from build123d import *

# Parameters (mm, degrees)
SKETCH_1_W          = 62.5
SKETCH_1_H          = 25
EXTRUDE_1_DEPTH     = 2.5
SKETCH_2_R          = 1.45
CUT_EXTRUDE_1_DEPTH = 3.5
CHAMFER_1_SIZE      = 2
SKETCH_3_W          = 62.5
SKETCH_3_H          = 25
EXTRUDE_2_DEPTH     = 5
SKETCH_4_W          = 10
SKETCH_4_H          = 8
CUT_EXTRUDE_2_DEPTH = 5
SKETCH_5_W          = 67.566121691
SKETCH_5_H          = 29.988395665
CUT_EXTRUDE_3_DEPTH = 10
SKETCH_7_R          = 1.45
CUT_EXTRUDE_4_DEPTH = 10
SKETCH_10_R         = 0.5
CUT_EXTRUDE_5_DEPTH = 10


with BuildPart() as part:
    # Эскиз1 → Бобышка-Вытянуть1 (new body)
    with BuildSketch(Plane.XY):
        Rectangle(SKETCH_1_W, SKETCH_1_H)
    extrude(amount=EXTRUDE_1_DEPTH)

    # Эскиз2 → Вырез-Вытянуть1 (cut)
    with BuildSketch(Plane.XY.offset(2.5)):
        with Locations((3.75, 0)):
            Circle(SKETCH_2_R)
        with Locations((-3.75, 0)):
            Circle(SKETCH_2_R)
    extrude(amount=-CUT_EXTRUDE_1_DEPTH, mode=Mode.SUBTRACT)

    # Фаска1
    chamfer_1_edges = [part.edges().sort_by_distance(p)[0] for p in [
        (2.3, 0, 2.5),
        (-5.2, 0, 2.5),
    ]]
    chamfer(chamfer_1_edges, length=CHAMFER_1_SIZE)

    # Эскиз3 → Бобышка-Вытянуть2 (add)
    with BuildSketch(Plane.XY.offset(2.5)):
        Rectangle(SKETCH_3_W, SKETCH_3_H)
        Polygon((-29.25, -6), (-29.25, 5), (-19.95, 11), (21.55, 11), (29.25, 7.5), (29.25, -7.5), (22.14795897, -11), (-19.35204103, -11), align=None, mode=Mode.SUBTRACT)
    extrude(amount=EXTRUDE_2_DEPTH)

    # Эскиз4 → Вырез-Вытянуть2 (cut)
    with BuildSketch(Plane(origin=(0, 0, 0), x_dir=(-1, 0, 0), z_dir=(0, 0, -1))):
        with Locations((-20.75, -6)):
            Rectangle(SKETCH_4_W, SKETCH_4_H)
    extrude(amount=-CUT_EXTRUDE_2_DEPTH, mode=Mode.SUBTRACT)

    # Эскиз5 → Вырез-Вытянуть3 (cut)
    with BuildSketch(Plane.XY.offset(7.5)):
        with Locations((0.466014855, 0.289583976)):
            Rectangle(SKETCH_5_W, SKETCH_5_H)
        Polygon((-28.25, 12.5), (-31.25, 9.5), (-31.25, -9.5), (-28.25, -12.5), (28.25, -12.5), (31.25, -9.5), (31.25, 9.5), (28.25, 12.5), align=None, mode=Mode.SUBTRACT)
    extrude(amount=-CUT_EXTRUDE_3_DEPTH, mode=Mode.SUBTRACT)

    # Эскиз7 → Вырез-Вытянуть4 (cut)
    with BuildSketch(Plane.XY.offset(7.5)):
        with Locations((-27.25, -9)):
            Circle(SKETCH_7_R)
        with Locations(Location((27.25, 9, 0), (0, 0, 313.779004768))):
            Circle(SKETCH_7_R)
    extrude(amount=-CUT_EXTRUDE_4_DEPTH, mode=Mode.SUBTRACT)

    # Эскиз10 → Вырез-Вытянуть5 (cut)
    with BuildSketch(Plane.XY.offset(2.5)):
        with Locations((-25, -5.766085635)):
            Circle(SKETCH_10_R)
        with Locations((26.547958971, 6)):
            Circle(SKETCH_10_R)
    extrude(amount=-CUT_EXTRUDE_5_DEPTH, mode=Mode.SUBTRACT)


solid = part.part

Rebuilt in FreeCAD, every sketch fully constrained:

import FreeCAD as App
import Part
import Sketcher
from FreeCAD import Vector
Q = App.Units.Quantity


def edges_at(feature, points):
    """Names of the edges that pass closest to the given points."""
    edges = feature.Shape.Edges
    near = lambda p: min(range(len(edges)), key=lambda i: edges[i].distToShape(Part.Vertex(*p))[0])
    return sorted({f"Edge{near(p) + 1}" for p in points})


def add_polygon(sketch, points):
    """Adds a closed chain of lines whose ends are joined by coincident constraints."""
    first, n = sketch.GeometryCount, len(points)
    for a, b in zip(points, points[1:] + points[:1]):
        sketch.addGeometry(Part.LineSegment(App.Vector(*a, 0), App.Vector(*b, 0)), False)
    for i in range(n):
        sketch.addConstraint(Sketcher.Constraint("Coincident", first + i, 2, first + (i + 1) % n, 1))

doc = App.newDocument("Part")
body = doc.addObject("PartDesign::Body", "Body")

# Sketch on XY plane
sketch1 = body.newObject("Sketcher::SketchObject", "Sketch")
sketch1.AttachmentSupport = (doc.getObject("XY_Plane"), [""])
sketch1.MapMode = "FlatFace"
add_polygon(sketch1, [(-31, 12), (-31, -12), (31, -12), (31, 12)])  # lines 0-3
sketch1.addConstraint([
    Sketcher.Constraint("Vertical", 0),
    Sketcher.Constraint("Horizontal", 1),
    Sketcher.Constraint("Vertical", 2),
    Sketcher.Constraint("Horizontal", 3),
    Sketcher.Constraint("Symmetric", 0, 2, 2, 2, -1, 1),
    Sketcher.Constraint("DistanceY", 0, 2, 0, 1, Q("25 mm")),
    Sketcher.Constraint("DistanceX", 1, 1, 1, 2, Q("62.5 mm")),
])
pad1 = body.newObject("PartDesign::Pad", "Pad")
pad1.Profile = sketch1
pad1.Length = 2.5

# Sketch on XY plane
sketch2 = body.newObject("Sketcher::SketchObject", "Sketch001")
sketch2.AttachmentSupport = (doc.getObject("XY_Plane"), [""])
sketch2.MapMode = "FlatFace"
sketch2.AttachmentOffset = App.Placement(Vector(0, 0, 2.5), App.Rotation())
sketch2.addGeometry([
    Part.Circle(Vector(3.8, 0, 0), Vector(0, 0, 1), 1.4),
    Part.Circle(Vector(-3.8, 0, 0), Vector(0, 0, 1), 1.4),
], False)
sketch2.addConstraint([
    Sketcher.Constraint("Equal", 0, 1),
    Sketcher.Constraint("Symmetric", 0, 3, 1, 3, -1, 1),
    Sketcher.Constraint("PointOnObject", 0, 3, -1),
    Sketcher.Constraint("Diameter", 0, Q("2.9 mm")),
    Sketcher.Constraint("DistanceX", 1, 3, 0, 3, Q("7.5 mm")),
])
pocket1 = body.newObject("PartDesign::Pocket", "Pocket")
pocket1.Profile = sketch2
pocket1.Length = 3.5
doc.recompute()

chamfer = body.newObject("PartDesign::Chamfer", "Chamfer")
chamfer.Base = (pocket1, edges_at(pocket1, [(2.3, 0, 2.5), (-5.2, 0, 2.5)]))
chamfer.Size = 2

# Sketch on XY plane
sketch3 = body.newObject("Sketcher::SketchObject", "Sketch002")
sketch3.AttachmentSupport = (doc.getObject("XY_Plane"), [""])
sketch3.MapMode = "FlatFace"
sketch3.AttachmentOffset = App.Placement(Vector(0, 0, 2.5), App.Rotation())
add_polygon(sketch3, [(-31, 12), (-31, -12), (31, -12), (31, 12)])  # lines 0-3
add_polygon(sketch3, [(-19, -11), (-29, -6), (-29, 5), (-20, 11), (22, 11), (29, 8), (29, -8), (22, -11)])  # lines 4-11
sketch3.addConstraint([
    Sketcher.Constraint("Vertical", 0),
    Sketcher.Constraint("Horizontal", 1),
    Sketcher.Constraint("Vertical", 2),
    Sketcher.Constraint("Horizontal", 3),
    Sketcher.Constraint("Vertical", 5),
    Sketcher.Constraint("Horizontal", 7),
    Sketcher.Constraint("Vertical", 9),
    Sketcher.Constraint("Horizontal", 11),
    Sketcher.Constraint("Symmetric", 0, 2, 2, 2, -1, 1),
    Sketcher.Constraint("Equal", 7, 11),
    Sketcher.Constraint("DistanceY", 0, 2, 0, 1, Q("25 mm")),
    Sketcher.Constraint("DistanceY", 5, 1, 5, 2, Q("11 mm")),
    Sketcher.Constraint("DistanceY", 9, 2, 9, 1, Q("15 mm")),
    Sketcher.Constraint("DistanceX", 1, 1, 1, 2, Q("62.5 mm")),
    Sketcher.Constraint("DistanceX", 7, 1, 7, 2, Q("41.5 mm")),
    Sketcher.Constraint("DistanceY", 4, 2, -1, 1, Q("6 mm")),
    Sketcher.Constraint("DistanceY", -1, 1, 6, 2, Q("11 mm")),
    Sketcher.Constraint("DistanceY", 10, 2, -1, 1, Q("11 mm")),
    Sketcher.Constraint("DistanceX", 0, 2, 4, 2, Q("2 mm")),
    Sketcher.Constraint("DistanceX", 8, 2, 2, 2, Q("2 mm")),
    Sketcher.Constraint("DistanceY", 8, 2, 2, 2, Q("5 mm")),
    Sketcher.Constraint("DistanceX", 5, 2, 6, 2, Q("9.3 mm")),
    Sketcher.Constraint("DistanceX", -1, 1, 10, 2, Q("22.147959 mm")),
])
pad2 = body.newObject("PartDesign::Pad", "Pad001")
pad2.Profile = sketch3
pad2.Length = 5

# Sketch on XY plane
sketch4 = body.newObject("Sketcher::SketchObject", "Sketch003")
sketch4.AttachmentSupport = (doc.getObject("XY_Plane"), [""])
sketch4.MapMode = "FlatFace"
add_polygon(sketch4, [(26, -2), (26, -10), (16, -10), (16, -2)])  # lines 0-3
sketch4.addConstraint([
    Sketcher.Constraint("Vertical", 0),
    Sketcher.Constraint("Horizontal", 1),
    Sketcher.Constraint("Vertical", 2),
    Sketcher.Constraint("Horizontal", 3),
    Sketcher.Constraint("DistanceX", 1, 2, 1, 1, Q("10 mm")),
    Sketcher.Constraint("DistanceY", 0, 2, 0, 1, Q("8 mm")),
    Sketcher.Constraint("DistanceY", 0, 2, -1, 1, Q("10 mm")),
    Sketcher.Constraint("DistanceX", -1, 1, 0, 2, Q("25.75 mm")),
])
pocket2 = body.newObject("PartDesign::Pocket", "Pocket001")
pocket2.Profile = sketch4
pocket2.Length = 5
pocket2.Reversed = True

# Sketch on XY plane
sketch5 = body.newObject("Sketcher::SketchObject", "Sketch004")
sketch5.AttachmentSupport = (doc.getObject("XY_Plane"), [""])
sketch5.MapMode = "FlatFace"
sketch5.AttachmentOffset = App.Placement(Vector(0, 0, 7.5), App.Rotation())
add_polygon(sketch5, [(-33.3, 15.3), (-33.3, -14.7), (34.2, -14.7), (34.2, 15.3)])  # lines 0-3
add_polygon(sketch5, [(-31.2, 9.5), (-28.2, 12.5), (28.2, 12.5), (31.2, 9.5), (31.2, -9.5), (28.2, -12.5), (-28.2, -12.5), (-31.2, -9.5)])  # lines 4-11
sketch5.addConstraint([
    Sketcher.Constraint("Vertical", 0),
    Sketcher.Constraint("Horizontal", 1),
    Sketcher.Constraint("Vertical", 2),
    Sketcher.Constraint("Horizontal", 3),
    Sketcher.Constraint("Horizontal", 5),
    Sketcher.Constraint("Vertical", 7),
    Sketcher.Constraint("Horizontal", 9),
    Sketcher.Constraint("Vertical", 11),
    Sketcher.Constraint("Symmetric", 4, 2, 8, 2, -1, 1),
    Sketcher.Constraint("Symmetric", 6, 2, 10, 2, -1, 1),
    Sketcher.Constraint("Perpendicular", 4, 6),
    Sketcher.Constraint("Perpendicular", 6, 8),
    Sketcher.Constraint("Perpendicular", 8, 10),
    Sketcher.Constraint("Horizontal", 7, 2, 10, 2),
    Sketcher.Constraint("Vertical", 5, 2, 8, 2),
    Sketcher.Constraint("DistanceY", 7, 2, 7, 1, Q("19 mm")),
    Sketcher.Constraint("DistanceX", 5, 1, 5, 2, Q("56.5 mm")),
    Sketcher.Constraint("DistanceX", 5, 2, 6, 2, Q("3 mm")),
    Sketcher.Constraint("DistanceX", 1, 1, 1, 2, Q("67.566122 mm")),
    Sketcher.Constraint("DistanceY", 0, 2, 0, 1, Q("29.988396 mm")),
    Sketcher.Constraint("DistanceY", -1, 1, 2, 2, Q("15.283782 mm")),
    Sketcher.Constraint("DistanceX", 0, 2, -1, 1, Q("33.317046 mm")),
])
pocket3 = body.newObject("PartDesign::Pocket", "Pocket002")
pocket3.Profile = sketch5
pocket3.Length = 10

# Sketch on XY plane
sketch6 = body.newObject("Sketcher::SketchObject", "Sketch005")
sketch6.AttachmentSupport = (doc.getObject("XY_Plane"), [""])
sketch6.MapMode = "FlatFace"
sketch6.AttachmentOffset = App.Placement(Vector(0, 0, 7.5), App.Rotation())
sketch6.addGeometry([
    Part.Circle(Vector(-27.2, -9, 0), Vector(0, 0, 1), 1.4),
    Part.Circle(Vector(27.2, 9, 0), Vector(0, 0, 1), 1.4),
], False)
sketch6.addConstraint([
    Sketcher.Constraint("Equal", 0, 1),
    Sketcher.Constraint("Symmetric", 0, 3, 1, 3, -1, 1),
    Sketcher.Constraint("Diameter", 0, Q("2.9 mm")),
    Sketcher.Constraint("DistanceY", 0, 3, -1, 1, Q("9 mm")),
    Sketcher.Constraint("DistanceX", 0, 3, 1, 3, Q("54.5 mm")),
])
pocket4 = body.newObject("PartDesign::Pocket", "Pocket003")
pocket4.Profile = sketch6
pocket4.Length = 10

# Sketch on XY plane
sketch7 = body.newObject("Sketcher::SketchObject", "Sketch006")
sketch7.AttachmentSupport = (doc.getObject("XY_Plane"), [""])
sketch7.MapMode = "FlatFace"
sketch7.AttachmentOffset = App.Placement(Vector(0, 0, 2.5), App.Rotation())
sketch7.addGeometry([
    Part.Circle(Vector(-25, -5.8, 0), Vector(0, 0, 1), 0.5),
    Part.Circle(Vector(26.5, 6, 0), Vector(0, 0, 1), 0.5),
], False)
sketch7.addConstraint([
    Sketcher.Constraint("Equal", 0, 1),
    Sketcher.Constraint("Diameter", 0, Q("1 mm")),
    Sketcher.Constraint("DistanceX", 0, 3, -1, 1, Q("25 mm")),
    Sketcher.Constraint("DistanceY", -1, 1, 1, 3, Q("6 mm")),
    Sketcher.Constraint("DistanceX", -1, 1, 1, 3, Q("26.547959 mm")),
    Sketcher.Constraint("DistanceY", 0, 3, -1, 1, Q("5.766086 mm")),
])
pocket5 = body.newObject("PartDesign::Pocket", "Pocket004")
pocket5.Profile = sketch7
pocket5.Length = 10

doc.recompute()
